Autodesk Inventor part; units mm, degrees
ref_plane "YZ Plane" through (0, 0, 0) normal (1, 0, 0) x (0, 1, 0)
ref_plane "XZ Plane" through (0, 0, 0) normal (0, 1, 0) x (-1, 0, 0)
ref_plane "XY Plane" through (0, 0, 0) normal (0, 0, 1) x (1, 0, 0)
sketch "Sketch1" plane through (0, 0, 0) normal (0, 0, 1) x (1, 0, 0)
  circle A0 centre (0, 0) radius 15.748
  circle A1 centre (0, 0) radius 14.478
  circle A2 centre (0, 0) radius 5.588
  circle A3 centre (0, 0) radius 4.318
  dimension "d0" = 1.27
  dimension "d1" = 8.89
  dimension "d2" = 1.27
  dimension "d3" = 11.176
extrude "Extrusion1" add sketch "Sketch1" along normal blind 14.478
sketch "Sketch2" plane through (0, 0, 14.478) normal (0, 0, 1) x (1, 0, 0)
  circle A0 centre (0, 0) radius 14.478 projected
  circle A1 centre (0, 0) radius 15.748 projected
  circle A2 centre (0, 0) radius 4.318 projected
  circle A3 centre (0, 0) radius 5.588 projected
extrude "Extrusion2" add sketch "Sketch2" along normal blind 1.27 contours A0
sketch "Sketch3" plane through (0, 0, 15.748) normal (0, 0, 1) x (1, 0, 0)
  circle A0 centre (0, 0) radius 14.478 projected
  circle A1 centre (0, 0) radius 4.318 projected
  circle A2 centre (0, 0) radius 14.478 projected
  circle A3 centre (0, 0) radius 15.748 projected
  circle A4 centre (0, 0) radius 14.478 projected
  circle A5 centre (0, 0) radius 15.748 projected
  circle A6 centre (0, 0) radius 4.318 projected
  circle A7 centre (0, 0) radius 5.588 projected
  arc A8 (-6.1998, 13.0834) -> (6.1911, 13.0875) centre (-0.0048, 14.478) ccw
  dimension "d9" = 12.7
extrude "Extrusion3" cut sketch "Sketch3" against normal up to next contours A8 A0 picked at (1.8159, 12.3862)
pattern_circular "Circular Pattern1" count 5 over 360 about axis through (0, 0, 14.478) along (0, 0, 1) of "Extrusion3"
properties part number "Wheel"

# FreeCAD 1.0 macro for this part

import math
import FreeCAD as App
import Part
import Sketcher

V = App.Vector
Q = App.Units.Quantity

doc = App.newDocument("Part")
params = doc.addObject("Spreadsheet::Sheet", "Params")
for row, (alias, value) in enumerate([
    ("sketch1_diameter", "0.44 in"),
    ("sketch1_diameter2", "1.24 in"),
    ("sketch1_diameter3", "1.14 in"),
    ("sketch1_diameter4", "0.34 in"),
    ("pad1_length", "0.57 in"),
    ("sketch2_diameter", "1.14 in"),
    ("sketch2_diameter2", "0.44 in"),
    ("pad2_length", "0.05 in"),
    ("sketch3_radius", "0.25 in"),
    ("sketch3_radius2", "0.57 in"),
], start=1):
    params.set(f"A{row}", alias)
    params.set(f"B{row}", "=" + value)
    params.setAlias(f"B{row}", alias)

body = doc.addObject("PartDesign::Body", "Body")
body.AllowCompound = True

# Sketch on XY plane
sketch1 = body.newObject("Sketcher::SketchObject", "Sketch")
sketch1.AttachmentSupport = (doc.getObject("XY_Plane"), [""])
sketch1.MapMode = "FlatFace"
sketch1.addGeometry([
    Part.Circle(V(0, 0, 0), V(0, 0, 1), 15.748),
    Part.Circle(V(0, 0, 0), V(0, 0, 1), 14.478),
    Part.Circle(V(0, 0, 0), V(0, 0, 1), 5.588),
    Part.Circle(V(0, 0, 0), V(0, 0, 1), 4.318),
], False)
sketch1.addConstraint([
    Sketcher.Constraint("Coincident", 0, 3, -1, 1),
    Sketcher.Constraint("Coincident", 1, 3, -1, 1),
    Sketcher.Constraint("Coincident", 2, 3, -1, 1),
    Sketcher.Constraint("Coincident", 3, 3, -1, 1),
    Sketcher.Constraint("Diameter", 2, Q("0.44 in")),
    Sketcher.Constraint("Diameter", 0, Q("1.24 in")),
    Sketcher.Constraint("Diameter", 1, Q("1.14 in")),
    Sketcher.Constraint("Diameter", 3, Q("0.34 in")),
])
sketch1.setExpression("Constraints[4]", "Params.sketch1_diameter")
sketch1.setExpression("Constraints[5]", "Params.sketch1_diameter2")
sketch1.setExpression("Constraints[6]", "Params.sketch1_diameter3")
sketch1.setExpression("Constraints[7]", "Params.sketch1_diameter4")
pad1 = body.newObject("PartDesign::Pad", "Pad")
pad1.Profile = sketch1
pad1.setExpression("Length", "Params.pad1_length")

# Sketch on XY plane
sketch2 = body.newObject("Sketcher::SketchObject", "Sketch001")
sketch2.AttachmentSupport = (doc.getObject("XY_Plane"), [""])
sketch2.MapMode = "FlatFace"
sketch2.AttachmentOffset = App.Placement(V(0, 0, 0.57 * 25.4), App.Rotation())
sketch2.addGeometry([
    Part.Circle(V(0, 0, 0), V(0, 0, 1), 14.478),
    Part.Circle(V(0, 0, 0), V(0, 0, 1), 5.588),
], False)
sketch2.addConstraint([
    Sketcher.Constraint("Coincident", 0, 3, -1, 1),
    Sketcher.Constraint("Coincident", 1, 3, -1, 1),
    Sketcher.Constraint("Diameter", 0, Q("1.14 in")),
    Sketcher.Constraint("Diameter", 1, Q("0.44 in")),
])
sketch2.setExpression("Constraints[2]", "Params.sketch2_diameter")
sketch2.setExpression("Constraints[3]", "Params.sketch2_diameter2")
pad2 = body.newObject("PartDesign::Pad", "Pad001")
pad2.Profile = sketch2
pad2.setExpression("Length", "Params.pad2_length")

# Sketch on XY plane
sketch3 = body.newObject("Sketcher::SketchObject", "Sketch002")
sketch3.AttachmentSupport = (doc.getObject("XY_Plane"), [""])
sketch3.MapMode = "FlatFace"
sketch3.AttachmentOffset = App.Placement(V(0, 0, 0.62 * 25.4), App.Rotation())
sketch3.addGeometry([
    Part.ArcOfCircle(Part.Circle(V(-0.0048, 14.478, 0), V(0, 0, 1), 6.350034), math.radians(-167.313234), math.radians(-12.648891)),
    Part.ArcOfCircle(Part.Circle(V(0, 0, 0), V(0, 0, 1), 14.478), math.radians(64.683302), math.radians(115.35476)),
], False)
sketch3.addConstraint([
    Sketcher.Constraint("Coincident", 0, 1, 1, 2),
    Sketcher.Constraint("Coincident", 1, 1, 0, 2),
    Sketcher.Constraint("Coincident", 1, 3, -1, 1),
    Sketcher.Constraint("Radius", 0, Q("0.25 in")),
    Sketcher.Constraint("Radius", 1, Q("0.57 in")),
    Sketcher.Constraint("DistanceY", -1, 1, 0, 3, Q("0.57 in")),
    Sketcher.Constraint("DistanceX", 0, 3, -1, 1, Q("0.0002 in")),
])
sketch3.setExpression("Constraints[3]", "Params.sketch3_radius")
sketch3.setExpression("Constraints[4]", "Params.sketch3_radius2")
pocket1 = body.newObject("PartDesign::Pocket", "Pocket")
pocket1.Profile = sketch3
pocket1.Type = "UpToFirst"
doc.recompute()

polarpattern = body.newObject("PartDesign::PolarPattern", "PolarPattern")
polarpattern.Originals = [pocket1]
polarpattern.Axis = (doc.getObject("Z_Axis"), [""])
polarpattern.Angle = 360
polarpattern.Occurrences = 5
body.Tip = polarpattern

doc.recompute()
